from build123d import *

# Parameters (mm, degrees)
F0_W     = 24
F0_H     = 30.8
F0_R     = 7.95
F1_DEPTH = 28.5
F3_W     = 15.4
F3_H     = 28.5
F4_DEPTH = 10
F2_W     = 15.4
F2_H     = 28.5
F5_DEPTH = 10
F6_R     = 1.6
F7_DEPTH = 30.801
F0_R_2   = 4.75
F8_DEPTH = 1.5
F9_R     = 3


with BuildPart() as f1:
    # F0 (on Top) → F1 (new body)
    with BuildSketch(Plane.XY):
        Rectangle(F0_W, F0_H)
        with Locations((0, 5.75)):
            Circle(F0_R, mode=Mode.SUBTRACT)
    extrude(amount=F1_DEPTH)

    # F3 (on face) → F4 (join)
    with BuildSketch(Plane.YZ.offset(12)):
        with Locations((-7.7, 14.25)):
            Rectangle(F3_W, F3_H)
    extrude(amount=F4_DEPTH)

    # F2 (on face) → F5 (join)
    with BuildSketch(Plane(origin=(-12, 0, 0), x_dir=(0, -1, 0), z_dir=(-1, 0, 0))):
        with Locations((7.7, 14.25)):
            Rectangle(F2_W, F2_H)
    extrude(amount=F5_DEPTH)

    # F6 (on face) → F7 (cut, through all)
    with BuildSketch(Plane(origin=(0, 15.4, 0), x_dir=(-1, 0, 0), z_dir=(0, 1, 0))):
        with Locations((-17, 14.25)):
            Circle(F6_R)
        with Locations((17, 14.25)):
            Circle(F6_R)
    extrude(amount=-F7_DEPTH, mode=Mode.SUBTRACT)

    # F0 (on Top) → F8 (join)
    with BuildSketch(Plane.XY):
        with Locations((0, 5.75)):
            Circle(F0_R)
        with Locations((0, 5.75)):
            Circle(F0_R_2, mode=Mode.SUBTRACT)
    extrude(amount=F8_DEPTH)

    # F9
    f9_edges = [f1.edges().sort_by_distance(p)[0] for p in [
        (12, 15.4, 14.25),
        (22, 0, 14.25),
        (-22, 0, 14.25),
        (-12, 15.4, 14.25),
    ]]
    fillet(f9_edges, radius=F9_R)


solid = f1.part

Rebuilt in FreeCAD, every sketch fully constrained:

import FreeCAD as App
import Part
import Sketcher
from FreeCAD import Vector


def edges_at(feature, points):
    """Names of the edges that pass closest to the given points."""
    edges = feature.Shape.Edges
    near = lambda p: min(range(len(edges)), key=lambda i: edges[i].distToShape(Part.Vertex(*p))[0])
    return sorted({f"Edge{near(p) + 1}" for p in points})

doc = App.newDocument("Part")
body = doc.addObject("PartDesign::Body", "Body")

# Sketch on XY plane
sketch1 = doc.addObject("Sketcher::SketchObject", "Sketch")
body.addObject(sketch1)
sketch1.AttachmentSupport = (doc.XY_Plane, [""])
sketch1.MapMode = "FlatFace"
sketch1.addGeometry([
    Part.LineSegment(Vector(-12, 15.4, 0), Vector(-12, -15.4, 0)),  # 0
    Part.LineSegment(Vector(-12, -15.4, 0), Vector(12, -15.4, 0)),  # 1
    Part.LineSegment(Vector(12, -15.4, 0), Vector(12, 15.4, 0)),  # 2
    Part.LineSegment(Vector(12, 15.4, 0), Vector(-12, 15.4, 0)),  # 3
    Part.Circle(Vector(0, 5.75, 0), Vector(0, 0, 1), 7.95),  # 4
], False)
sketch1.addConstraint([
    Sketcher.Constraint("Coincident", 0, 2, 1, 1),
    Sketcher.Constraint("Coincident", 1, 2, 2, 1),
    Sketcher.Constraint("Coincident", 2, 2, 3, 1),
    Sketcher.Constraint("Coincident", 3, 2, 0, 1),
    Sketcher.Constraint("Vertical", 0),
    Sketcher.Constraint("Horizontal", 1),
    Sketcher.Constraint("Vertical", 2),
    Sketcher.Constraint("Horizontal", 3),
    Sketcher.Constraint("Symmetric", 0, 2, 2, 2, -1, 1),
    Sketcher.Constraint("PointOnObject", 4, 3, -2),
    Sketcher.Constraint("Diameter", 4, 15.9),
    Sketcher.Constraint("DistanceX", 1, 1, 1, 2, 24.0),
    Sketcher.Constraint("DistanceY", 0, 2, 0, 1, 30.8),
    Sketcher.Constraint("DistanceY", -1, 1, 4, 3, 5.75),
])
pad1 = doc.addObject("PartDesign::Pad", "Pad")
body.addObject(pad1)
pad1.Profile = sketch1
pad1.Length = 28.5

# Sketch on YZ plane
sketch2 = doc.addObject("Sketcher::SketchObject", "Sketch001")
body.addObject(sketch2)
sketch2.AttachmentSupport = (doc.YZ_Plane, [""])
sketch2.MapMode = "FlatFace"
sketch2.AttachmentOffset = App.Placement(Vector(0, 0, 12), App.Rotation())
sketch2.addGeometry([
    Part.LineSegment(Vector(-15.4, 28.5, 0), Vector(-15.4, 0, 0)),
    Part.LineSegment(Vector(-15.4, 0, 0), Vector(0, 0, 0)),
    Part.LineSegment(Vector(0, 0, 0), Vector(0, 28.5, 0)),
    Part.LineSegment(Vector(0, 28.5, 0), Vector(-15.4, 28.5, 0)),
], False)
sketch2.addConstraint([
    Sketcher.Constraint("Coincident", 0, 2, 1, 1),
    Sketcher.Constraint("Coincident", 1, 2, 2, 1),
    Sketcher.Constraint("Coincident", 2, 2, 3, 1),
    Sketcher.Constraint("Coincident", 3, 2, 0, 1),
    Sketcher.Constraint("Vertical", 0),
    Sketcher.Constraint("Horizontal", 1),
    Sketcher.Constraint("Vertical", 2),
    Sketcher.Constraint("Horizontal", 3),
    Sketcher.Constraint("Coincident", 1, 2, -1, 1),
    Sketcher.Constraint("DistanceX", 1, 1, 1, 2, 15.4),
    Sketcher.Constraint("DistanceY", 0, 2, 0, 1, 28.5),
])
pad2 = doc.addObject("PartDesign::Pad", "Pad001")
body.addObject(pad2)
pad2.Profile = sketch2
pad2.Length = 10

# Sketch on YZ plane
sketch3 = doc.addObject("Sketcher::SketchObject", "Sketch002")
body.addObject(sketch3)
sketch3.AttachmentSupport = (doc.YZ_Plane, [""])
sketch3.MapMode = "FlatFace"
sketch3.AttachmentOffset = App.Placement(Vector(0, 0, -12), App.Rotation())
sketch3.addGeometry([
    Part.LineSegment(Vector(0, 28.5, 0), Vector(0, 0, 0)),
    Part.LineSegment(Vector(0, 0, 0), Vector(-15.4, 0, 0)),
    Part.LineSegment(Vector(-15.4, 0, 0), Vector(-15.4, 28.5, 0)),
    Part.LineSegment(Vector(-15.4, 28.5, 0), Vector(0, 28.5, 0)),
], False)
sketch3.addConstraint([
    Sketcher.Constraint("Coincident", 0, 2, 1, 1),
    Sketcher.Constraint("Coincident", 1, 2, 2, 1),
    Sketcher.Constraint("Coincident", 2, 2, 3, 1),
    Sketcher.Constraint("Coincident", 3, 2, 0, 1),
    Sketcher.Constraint("Vertical", 0),
    Sketcher.Constraint("Horizontal", 1),
    Sketcher.Constraint("Vertical", 2),
    Sketcher.Constraint("Horizontal", 3),
    Sketcher.Constraint("Coincident", 0, 2, -1, 1),
    Sketcher.Constraint("DistanceX", 1, 2, 1, 1, 15.4),
    Sketcher.Constraint("DistanceY", 0, 2, 0, 1, 28.5),
])
pad3 = doc.addObject("PartDesign::Pad", "Pad002")
body.addObject(pad3)
pad3.Profile = sketch3
pad3.Length = 10
pad3.Reversed = True

# Sketch on XZ plane
sketch4 = doc.addObject("Sketcher::SketchObject", "Sketch003")
body.addObject(sketch4)
sketch4.AttachmentSupport = (doc.XZ_Plane, [""])
sketch4.MapMode = "FlatFace"
sketch4.AttachmentOffset = App.Placement(Vector(0, 0, -15.4), App.Rotation())
sketch4.addGeometry([
    Part.Circle(Vector(17, 14.25, 0), Vector(0, 0, 1), 1.6),
    Part.Circle(Vector(-17, 14.25, 0), Vector(0, 0, 1), 1.6),
], False)
sketch4.addConstraint([
    Sketcher.Constraint("Equal", 0, 1),
    Sketcher.Constraint("Symmetric", 0, 3, 1, 3, -2),
    Sketcher.Constraint("Diameter", 0, 3.2),
    Sketcher.Constraint("DistanceX", -1, 1, 0, 3, 17.0),
    Sketcher.Constraint("DistanceY", -1, 1, 0, 3, 14.25),
])
pocket1 = doc.addObject("PartDesign::Pocket", "Pocket")
body.addObject(pocket1)
pocket1.Profile = sketch4
pocket1.Type = "ThroughAll"
pocket1.Reversed = True

# Sketch on XY plane
sketch5 = doc.addObject("Sketcher::SketchObject", "Sketch004")
body.addObject(sketch5)
sketch5.AttachmentSupport = (doc.XY_Plane, [""])
sketch5.MapMode = "FlatFace"
sketch5.addGeometry([
    Part.Circle(Vector(0, 5.75, 0), Vector(0, 0, 1), 7.95),
    Part.Circle(Vector(0, 5.75, 0), Vector(0, 0, 1), 4.75),
], False)
sketch5.addConstraint([
    Sketcher.Constraint("Coincident", 1, 3, 0, 3),
    Sketcher.Constraint("PointOnObject", 0, 3, -2),
    Sketcher.Constraint("Diameter", 0, 15.9),
    Sketcher.Constraint("Diameter", 1, 9.5),
    Sketcher.Constraint("DistanceY", -1, 1, 0, 3, 5.75),
])
pad4 = doc.addObject("PartDesign::Pad", "Pad003")
body.addObject(pad4)
pad4.Profile = sketch5
pad4.Length = 1.5
doc.recompute()

fillet = doc.addObject("PartDesign::Fillet", "Fillet")
body.addObject(fillet)
fillet.Base = (pad4, edges_at(pad4, [
    (12, 15.4, 14.25),
    (22, 0, 14.25),
    (-22, 0, 14.25),
    (-12, 15.4, 14.25),
]))
fillet.Radius = 3

doc.recompute()
